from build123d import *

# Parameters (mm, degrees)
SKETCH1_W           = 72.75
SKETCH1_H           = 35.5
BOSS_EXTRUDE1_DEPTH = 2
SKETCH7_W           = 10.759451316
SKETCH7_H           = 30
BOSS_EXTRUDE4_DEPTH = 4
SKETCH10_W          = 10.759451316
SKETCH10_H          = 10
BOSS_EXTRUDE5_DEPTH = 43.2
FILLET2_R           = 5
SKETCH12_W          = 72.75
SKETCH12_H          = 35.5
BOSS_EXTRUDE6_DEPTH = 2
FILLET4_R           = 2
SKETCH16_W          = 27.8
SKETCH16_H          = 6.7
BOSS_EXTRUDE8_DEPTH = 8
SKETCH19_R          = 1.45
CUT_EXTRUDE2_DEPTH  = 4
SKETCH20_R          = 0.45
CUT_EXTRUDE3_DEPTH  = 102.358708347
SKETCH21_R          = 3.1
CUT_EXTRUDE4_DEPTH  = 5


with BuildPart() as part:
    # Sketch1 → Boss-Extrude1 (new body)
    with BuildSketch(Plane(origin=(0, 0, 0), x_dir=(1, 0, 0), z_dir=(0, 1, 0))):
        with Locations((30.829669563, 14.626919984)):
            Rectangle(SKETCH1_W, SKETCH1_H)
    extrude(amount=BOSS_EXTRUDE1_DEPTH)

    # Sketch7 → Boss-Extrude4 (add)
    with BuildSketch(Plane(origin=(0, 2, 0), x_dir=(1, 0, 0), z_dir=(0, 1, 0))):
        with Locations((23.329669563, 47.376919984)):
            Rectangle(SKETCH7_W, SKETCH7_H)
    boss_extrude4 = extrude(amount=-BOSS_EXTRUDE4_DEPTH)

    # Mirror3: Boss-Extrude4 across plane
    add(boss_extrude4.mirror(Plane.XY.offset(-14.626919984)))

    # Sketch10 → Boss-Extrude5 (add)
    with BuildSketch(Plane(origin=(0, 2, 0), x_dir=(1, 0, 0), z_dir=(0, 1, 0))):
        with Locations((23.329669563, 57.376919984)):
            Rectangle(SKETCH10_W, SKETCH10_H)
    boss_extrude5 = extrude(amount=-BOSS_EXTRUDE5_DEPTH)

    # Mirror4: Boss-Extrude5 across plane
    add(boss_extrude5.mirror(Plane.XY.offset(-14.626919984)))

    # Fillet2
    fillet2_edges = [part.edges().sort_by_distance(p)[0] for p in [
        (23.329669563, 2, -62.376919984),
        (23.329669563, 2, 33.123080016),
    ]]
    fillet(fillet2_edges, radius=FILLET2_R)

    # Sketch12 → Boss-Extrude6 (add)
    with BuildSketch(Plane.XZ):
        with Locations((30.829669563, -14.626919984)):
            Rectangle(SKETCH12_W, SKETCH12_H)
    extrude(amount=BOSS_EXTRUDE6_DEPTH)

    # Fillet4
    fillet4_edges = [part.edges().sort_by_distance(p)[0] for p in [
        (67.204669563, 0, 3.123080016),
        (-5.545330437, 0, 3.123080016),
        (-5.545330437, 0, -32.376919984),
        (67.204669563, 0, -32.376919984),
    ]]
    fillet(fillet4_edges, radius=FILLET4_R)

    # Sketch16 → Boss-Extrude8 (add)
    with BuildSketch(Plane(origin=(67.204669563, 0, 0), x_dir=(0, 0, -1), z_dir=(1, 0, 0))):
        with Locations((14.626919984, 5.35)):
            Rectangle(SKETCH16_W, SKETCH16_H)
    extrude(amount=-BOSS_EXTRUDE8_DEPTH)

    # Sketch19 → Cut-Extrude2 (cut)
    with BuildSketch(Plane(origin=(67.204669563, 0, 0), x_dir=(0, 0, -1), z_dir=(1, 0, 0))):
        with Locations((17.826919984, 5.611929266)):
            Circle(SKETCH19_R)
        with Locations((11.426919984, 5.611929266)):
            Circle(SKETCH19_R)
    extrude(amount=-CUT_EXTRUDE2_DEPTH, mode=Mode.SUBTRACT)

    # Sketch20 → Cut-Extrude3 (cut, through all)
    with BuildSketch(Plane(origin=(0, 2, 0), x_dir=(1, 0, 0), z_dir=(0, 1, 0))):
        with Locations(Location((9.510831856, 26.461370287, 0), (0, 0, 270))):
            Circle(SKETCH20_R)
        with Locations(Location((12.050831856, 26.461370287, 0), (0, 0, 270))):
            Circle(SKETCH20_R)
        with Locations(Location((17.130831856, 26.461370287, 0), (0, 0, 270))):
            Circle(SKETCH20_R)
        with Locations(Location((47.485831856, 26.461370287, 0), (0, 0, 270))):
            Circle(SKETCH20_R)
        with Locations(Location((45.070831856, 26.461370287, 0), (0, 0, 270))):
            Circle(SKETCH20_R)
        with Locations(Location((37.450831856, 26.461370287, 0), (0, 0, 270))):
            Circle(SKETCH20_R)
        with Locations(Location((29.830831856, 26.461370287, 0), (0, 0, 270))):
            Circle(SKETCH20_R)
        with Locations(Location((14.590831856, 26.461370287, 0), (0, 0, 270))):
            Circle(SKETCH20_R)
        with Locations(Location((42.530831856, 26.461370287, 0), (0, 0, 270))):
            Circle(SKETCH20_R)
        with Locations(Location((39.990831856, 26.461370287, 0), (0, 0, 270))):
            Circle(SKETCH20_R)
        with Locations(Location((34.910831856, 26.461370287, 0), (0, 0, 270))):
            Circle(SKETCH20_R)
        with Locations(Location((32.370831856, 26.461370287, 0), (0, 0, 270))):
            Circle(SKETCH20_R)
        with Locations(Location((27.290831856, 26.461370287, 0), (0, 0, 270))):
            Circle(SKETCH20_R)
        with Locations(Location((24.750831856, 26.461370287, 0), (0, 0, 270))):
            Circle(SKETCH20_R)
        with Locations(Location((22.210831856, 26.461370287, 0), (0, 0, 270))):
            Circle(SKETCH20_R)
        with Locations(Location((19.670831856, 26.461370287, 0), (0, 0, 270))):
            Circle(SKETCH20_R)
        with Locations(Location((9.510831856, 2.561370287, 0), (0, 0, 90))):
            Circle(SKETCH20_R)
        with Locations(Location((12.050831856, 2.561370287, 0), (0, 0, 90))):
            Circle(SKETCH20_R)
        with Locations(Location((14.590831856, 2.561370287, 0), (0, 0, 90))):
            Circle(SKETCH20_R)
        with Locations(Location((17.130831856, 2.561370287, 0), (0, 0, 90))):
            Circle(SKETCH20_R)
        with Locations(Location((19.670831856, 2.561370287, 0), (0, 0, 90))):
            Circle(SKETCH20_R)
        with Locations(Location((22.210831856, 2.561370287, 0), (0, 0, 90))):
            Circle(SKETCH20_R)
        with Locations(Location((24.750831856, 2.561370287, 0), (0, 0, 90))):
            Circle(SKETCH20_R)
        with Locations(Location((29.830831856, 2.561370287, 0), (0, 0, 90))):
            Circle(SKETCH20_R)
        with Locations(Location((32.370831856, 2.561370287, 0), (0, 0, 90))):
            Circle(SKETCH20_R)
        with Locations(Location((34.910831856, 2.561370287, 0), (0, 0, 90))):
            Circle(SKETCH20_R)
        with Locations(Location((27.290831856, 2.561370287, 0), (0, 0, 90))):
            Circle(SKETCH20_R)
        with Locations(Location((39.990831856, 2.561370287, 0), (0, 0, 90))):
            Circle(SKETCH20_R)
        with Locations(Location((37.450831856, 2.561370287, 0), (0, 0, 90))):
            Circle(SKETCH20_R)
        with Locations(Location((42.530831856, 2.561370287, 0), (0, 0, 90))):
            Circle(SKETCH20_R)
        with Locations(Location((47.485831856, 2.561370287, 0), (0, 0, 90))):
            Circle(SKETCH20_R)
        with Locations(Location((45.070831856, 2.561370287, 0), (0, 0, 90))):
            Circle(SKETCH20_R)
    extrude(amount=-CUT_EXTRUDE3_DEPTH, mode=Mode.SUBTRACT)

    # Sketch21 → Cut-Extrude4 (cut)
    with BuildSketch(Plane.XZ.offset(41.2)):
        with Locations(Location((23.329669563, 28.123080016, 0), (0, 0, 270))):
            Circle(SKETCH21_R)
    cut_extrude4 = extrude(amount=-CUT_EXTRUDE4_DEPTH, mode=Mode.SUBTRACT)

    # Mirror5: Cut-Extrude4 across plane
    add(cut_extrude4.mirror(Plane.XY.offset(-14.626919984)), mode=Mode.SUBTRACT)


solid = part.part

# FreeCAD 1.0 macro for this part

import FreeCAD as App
import Part
import Sketcher

V = App.Vector
Q = App.Units.Quantity


def edges_at(feature, points):
    """Names of the edges that pass closest to the given points."""
    edges = feature.Shape.Edges
    near = lambda p: min(range(len(edges)), key=lambda i: edges[i].distToShape(Part.Vertex(*p))[0])
    return sorted({f"Edge{near(p) + 1}" for p in points})

doc = App.newDocument("Part")
body = doc.addObject("PartDesign::Body", "Body")

# Sketch on XZ plane
sketch1 = body.newObject("Sketcher::SketchObject", "Sketch")
sketch1.AttachmentSupport = (doc.getObject("XZ_Plane"), [""])
sketch1.MapMode = "FlatFace"
sketch1.addGeometry([
    Part.LineSegment(V(-6, -32, 0), V(-6, 3, 0)),
    Part.LineSegment(V(-6, 3, 0), V(67, 3, 0)),
    Part.LineSegment(V(67, 3, 0), V(67, -32, 0)),
    Part.LineSegment(V(67, -32, 0), V(-6, -32, 0)),
], False)
sketch1.addConstraint([
    Sketcher.Constraint("Coincident", 0, 2, 1, 1),
    Sketcher.Constraint("Coincident", 1, 2, 2, 1),
    Sketcher.Constraint("Coincident", 2, 2, 3, 1),
    Sketcher.Constraint("Coincident", 3, 2, 0, 1),
    Sketcher.Constraint("Vertical", 0),
    Sketcher.Constraint("Horizontal", 1),
    Sketcher.Constraint("Vertical", 2),
    Sketcher.Constraint("Horizontal", 3),
    Sketcher.Constraint("DistanceY", 0, 1, 0, 2, Q("35.5 mm")),
    Sketcher.Constraint("DistanceX", 1, 1, 1, 2, Q("72.75 mm")),
    Sketcher.Constraint("DistanceX", 0, 2, -1, 1, Q("5.54533 mm")),
    Sketcher.Constraint("DistanceY", -1, 1, 0, 2, Q("3.12308 mm")),
])
pad1 = body.newObject("PartDesign::Pad", "Pad")
pad1.Profile = sketch1
pad1.Length = 2
pad1.Reversed = True

# Sketch on XZ plane
sketch2 = body.newObject("Sketcher::SketchObject", "Sketch001")
sketch2.AttachmentSupport = (doc.getObject("XZ_Plane"), [""])
sketch2.MapMode = "FlatFace"
sketch2.AttachmentOffset = App.Placement(V(0, 0, -2), App.Rotation())
sketch2.addGeometry([
    Part.LineSegment(V(18, -62, 0), V(18, -32, 0)),
    Part.LineSegment(V(18, -32, 0), V(29, -32, 0)),
    Part.LineSegment(V(29, -32, 0), V(29, -62, 0)),
    Part.LineSegment(V(29, -62, 0), V(18, -62, 0)),
], False)
sketch2.addConstraint([
    Sketcher.Constraint("Coincident", 0, 2, 1, 1),
    Sketcher.Constraint("Coincident", 1, 2, 2, 1),
    Sketcher.Constraint("Coincident", 2, 2, 3, 1),
    Sketcher.Constraint("Coincident", 3, 2, 0, 1),
    Sketcher.Constraint("Vertical", 0),
    Sketcher.Constraint("Horizontal", 1),
    Sketcher.Constraint("Vertical", 2),
    Sketcher.Constraint("Horizontal", 3),
    Sketcher.Constraint("DistanceY", 0, 1, 0, 2, Q("30 mm")),
    Sketcher.Constraint("DistanceX", 1, 1, 1, 2, Q("10.759451 mm")),
    Sketcher.Constraint("DistanceY", 0, 2, -1, 1, Q("32.37692 mm")),
    Sketcher.Constraint("DistanceX", -1, 1, 0, 2, Q("17.949944 mm")),
])
pad2 = body.newObject("PartDesign::Pad", "Pad001")
pad2.Profile = sketch2
pad2.Length = 4
doc.recompute()

datumplane = body.newObject("PartDesign::Plane", "DatumPlane")
datumplane.AttachmentSupport = (doc.getObject("XY_Plane"), [""])
datumplane.MapMode = "FlatFace"
datumplane.AttachmentOffset = App.Placement(V(0, 0, -14.62692), App.Rotation())
mirrored = body.newObject("PartDesign::Mirrored", "Mirrored")
mirrored.Originals = [pad2]
mirrored.MirrorPlane = (datumplane, [""])
body.Tip = mirrored

# Sketch on XZ plane
sketch3 = body.newObject("Sketcher::SketchObject", "Sketch002")
sketch3.AttachmentSupport = (doc.getObject("XZ_Plane"), [""])
sketch3.MapMode = "FlatFace"
sketch3.AttachmentOffset = App.Placement(V(0, 0, -2), App.Rotation())
sketch3.addGeometry([
    Part.LineSegment(V(18, -62, 0), V(18, -52, 0)),
    Part.LineSegment(V(18, -52, 0), V(29, -52, 0)),
    Part.LineSegment(V(29, -52, 0), V(29, -62, 0)),
    Part.LineSegment(V(29, -62, 0), V(18, -62, 0)),
], False)
sketch3.addConstraint([
    Sketcher.Constraint("Coincident", 0, 2, 1, 1),
    Sketcher.Constraint("Coincident", 1, 2, 2, 1),
    Sketcher.Constraint("Coincident", 2, 2, 3, 1),
    Sketcher.Constraint("Coincident", 3, 2, 0, 1),
    Sketcher.Constraint("Vertical", 0),
    Sketcher.Constraint("Horizontal", 1),
    Sketcher.Constraint("Vertical", 2),
    Sketcher.Constraint("Horizontal", 3),
    Sketcher.Constraint("DistanceY", 0, 1, 0, 2, Q("10 mm")),
    Sketcher.Constraint("DistanceX", 1, 1, 1, 2, Q("10.759451 mm")),
    Sketcher.Constraint("DistanceY", 0, 2, -1, 1, Q("52.37692 mm")),
    Sketcher.Constraint("DistanceX", -1, 1, 0, 2, Q("17.949944 mm")),
])
pad3 = body.newObject("PartDesign::Pad", "Pad002")
pad3.Profile = sketch3
pad3.Length = 43.2
doc.recompute()

datumplane2 = body.newObject("PartDesign::Plane", "DatumPlane001")
datumplane2.AttachmentSupport = (doc.getObject("XY_Plane"), [""])
datumplane2.MapMode = "FlatFace"
datumplane2.AttachmentOffset = App.Placement(V(0, 0, -14.62692), App.Rotation())
mirrored2 = body.newObject("PartDesign::Mirrored", "Mirrored001")
mirrored2.Originals = [pad3]
mirrored2.MirrorPlane = (datumplane2, [""])
body.Tip = mirrored2
doc.recompute()

fillet = body.newObject("PartDesign::Fillet", "Fillet")
fillet.Base = (mirrored2, edges_at(mirrored2, [(23.33, 2, -62.377), (23.33, 2, 33.123)]))
fillet.Radius = 5

# Sketch on XZ plane
sketch4 = body.newObject("Sketcher::SketchObject", "Sketch003")
sketch4.AttachmentSupport = (doc.getObject("XZ_Plane"), [""])
sketch4.MapMode = "FlatFace"
sketch4.addGeometry([
    Part.LineSegment(V(-6, 3, 0), V(-6, -32, 0)),
    Part.LineSegment(V(-6, -32, 0), V(67, -32, 0)),
    Part.LineSegment(V(67, -32, 0), V(67, 3, 0)),
    Part.LineSegment(V(67, 3, 0), V(-6, 3, 0)),
], False)
sketch4.addConstraint([
    Sketcher.Constraint("Coincident", 0, 2, 1, 1),
    Sketcher.Constraint("Coincident", 1, 2, 2, 1),
    Sketcher.Constraint("Coincident", 2, 2, 3, 1),
    Sketcher.Constraint("Coincident", 3, 2, 0, 1),
    Sketcher.Constraint("Vertical", 0),
    Sketcher.Constraint("Horizontal", 1),
    Sketcher.Constraint("Vertical", 2),
    Sketcher.Constraint("Horizontal", 3),
    Sketcher.Constraint("DistanceY", 0, 2, 0, 1, Q("35.5 mm")),
    Sketcher.Constraint("DistanceX", 1, 1, 1, 2, Q("72.75 mm")),
    Sketcher.Constraint("DistanceX", 0, 2, -1, 1, Q("5.54533 mm")),
    Sketcher.Constraint("DistanceY", 0, 2, -1, 1, Q("32.37692 mm")),
])
pad4 = body.newObject("PartDesign::Pad", "Pad003")
pad4.Profile = sketch4
pad4.Length = 2
doc.recompute()

fillet2 = body.newObject("PartDesign::Fillet", "Fillet001")
fillet2.Base = (pad4, edges_at(pad4, [
    (67.205, 0, 3.123),
    (-5.545, 0, 3.123),
    (-5.545, 0, -32.377),
    (67.205, 0, -32.377),
]))
fillet2.Radius = 2

# Sketch on YZ plane
sketch5 = body.newObject("Sketcher::SketchObject", "Sketch004")
sketch5.AttachmentSupport = (doc.getObject("YZ_Plane"), [""])
sketch5.MapMode = "FlatFace"
sketch5.AttachmentOffset = App.Placement(V(0, 0, 67.20467), App.Rotation())
sketch5.addGeometry([
    Part.LineSegment(V(9, -1, 0), V(2, -1, 0)),
    Part.LineSegment(V(2, -1, 0), V(2, -29, 0)),
    Part.LineSegment(V(2, -29, 0), V(9, -29, 0)),
    Part.LineSegment(V(9, -29, 0), V(9, -1, 0)),
], False)
sketch5.addConstraint([
    Sketcher.Constraint("Coincident", 0, 2, 1, 1),
    Sketcher.Constraint("Coincident", 1, 2, 2, 1),
    Sketcher.Constraint("Coincident", 2, 2, 3, 1),
    Sketcher.Constraint("Coincident", 3, 2, 0, 1),
    Sketcher.Constraint("Horizontal", 0),
    Sketcher.Constraint("Vertical", 1),
    Sketcher.Constraint("Horizontal", 2),
    Sketcher.Constraint("Vertical", 3),
    Sketcher.Constraint("DistanceX", 0, 2, 0, 1, Q("6.7 mm")),
    Sketcher.Constraint("DistanceY", 1, 2, 1, 1, Q("27.8 mm")),
    Sketcher.Constraint("DistanceX", -1, 1, 0, 2, Q("2 mm")),
    Sketcher.Constraint("DistanceY", 0, 2, -1, 1, Q("0.72692 mm")),
])
pad5 = body.newObject("PartDesign::Pad", "Pad004")
pad5.Profile = sketch5
pad5.Length = 8
pad5.Reversed = True

# Sketch on YZ plane
sketch6 = body.newObject("Sketcher::SketchObject", "Sketch005")
sketch6.AttachmentSupport = (doc.getObject("YZ_Plane"), [""])
sketch6.MapMode = "FlatFace"
sketch6.AttachmentOffset = App.Placement(V(0, 0, 67.20467), App.Rotation())
sketch6.addGeometry([
    Part.Circle(V(5.6, -17.8, 0), V(0, 0, 1), 1.4),
    Part.Circle(V(5.6, -11.4, 0), V(0, 0, 1), 1.4),
], False)
sketch6.addConstraint([
    Sketcher.Constraint("Equal", 0, 1),
    Sketcher.Constraint("Vertical", 0, 3, 1, 3),
    Sketcher.Constraint("Diameter", 0, Q("2.9 mm")),
    Sketcher.Constraint("DistanceY", 0, 3, 1, 3, Q("6.4 mm")),
    Sketcher.Constraint("DistanceX", -1, 1, 0, 3, Q("5.611929 mm")),
    Sketcher.Constraint("DistanceY", 0, 3, -1, 1, Q("17.82692 mm")),
])
pocket1 = body.newObject("PartDesign::Pocket", "Pocket")
pocket1.Profile = sketch6
pocket1.Length = 4

# Sketch on XZ plane
sketch7 = body.newObject("Sketcher::SketchObject", "Sketch006")
sketch7.AttachmentSupport = (doc.getObject("XZ_Plane"), [""])
sketch7.MapMode = "FlatFace"
sketch7.AttachmentOffset = App.Placement(V(0, 0, -2), App.Rotation())
sketch7.addGeometry([
    Part.Circle(V(9.51, -26.46, 0), V(0, 0, 1), 0.45),  # 0
    Part.Circle(V(12.05, -26.46, 0), V(0, 0, 1), 0.45),  # 1
    Part.Circle(V(17.13, -26.46, 0), V(0, 0, 1), 0.45),  # 2
    Part.Circle(V(47.49, -26.46, 0), V(0, 0, 1), 0.45),  # 3
    Part.Circle(V(45.07, -26.46, 0), V(0, 0, 1), 0.45),  # 4
    Part.Circle(V(37.45, -26.46, 0), V(0, 0, 1), 0.45),  # 5
    Part.Circle(V(29.83, -26.46, 0), V(0, 0, 1), 0.45),  # 6
    Part.Circle(V(14.59, -26.46, 0), V(0, 0, 1), 0.45),  # 7
    Part.Circle(V(42.53, -26.46, 0), V(0, 0, 1), 0.45),  # 8
    Part.Circle(V(39.99, -26.46, 0), V(0, 0, 1), 0.45),  # 9
    Part.Circle(V(34.91, -26.46, 0), V(0, 0, 1), 0.45),  # 10
    Part.Circle(V(32.37, -26.46, 0), V(0, 0, 1), 0.45),  # 11
    Part.Circle(V(27.29, -26.46, 0), V(0, 0, 1), 0.45),  # 12
    Part.Circle(V(24.75, -26.46, 0), V(0, 0, 1), 0.45),  # 13
    Part.Circle(V(22.21, -26.46, 0), V(0, 0, 1), 0.45),  # 14
    Part.Circle(V(19.67, -26.46, 0), V(0, 0, 1), 0.45),  # 15
    Part.Circle(V(9.51, -2.56, 0), V(0, 0, 1), 0.45),  # 16
    Part.Circle(V(12.05, -2.56, 0), V(0, 0, 1), 0.45),  # 17
    Part.Circle(V(14.59, -2.56, 0), V(0, 0, 1), 0.45),  # 18
    Part.Circle(V(17.13, -2.56, 0), V(0, 0, 1), 0.45),  # 19
    Part.Circle(V(19.67, -2.56, 0), V(0, 0, 1), 0.45),  # 20
    Part.Circle(V(22.21, -2.56, 0), V(0, 0, 1), 0.45),  # 21
    Part.Circle(V(24.75, -2.56, 0), V(0, 0, 1), 0.45),  # 22
    Part.Circle(V(29.83, -2.56, 0), V(0, 0, 1), 0.45),  # 23
    Part.Circle(V(32.37, -2.56, 0), V(0, 0, 1), 0.45),  # 24
    Part.Circle(V(34.91, -2.56, 0), V(0, 0, 1), 0.45),  # 25
    Part.Circle(V(27.29, -2.56, 0), V(0, 0, 1), 0.45),  # 26
    Part.Circle(V(39.99, -2.56, 0), V(0, 0, 1), 0.45),  # 27
    Part.Circle(V(37.45, -2.56, 0), V(0, 0, 1), 0.45),  # 28
    Part.Circle(V(42.53, -2.56, 0), V(0, 0, 1), 0.45),  # 29
    Part.Circle(V(47.49, -2.56, 0), V(0, 0, 1), 0.45),  # 30
    Part.Circle(V(45.07, -2.56, 0), V(0, 0, 1), 0.45),  # 31
], False)
sketch7.addConstraint([
    Sketcher.Constraint("Equal", 0, 1),
    Sketcher.Constraint("Equal", 1, 2),
    Sketcher.Constraint("Equal", 2, 3),
    Sketcher.Constraint("Equal", 3, 4),
    Sketcher.Constraint("Equal", 4, 5),
    Sketcher.Constraint("Equal", 5, 6),
    Sketcher.Constraint("Equal", 6, 7),
    Sketcher.Constraint("Equal", 7, 8),
    Sketcher.Constraint("Equal", 8, 9),
    Sketcher.Constraint("Equal", 9, 10),
    Sketcher.Constraint("Equal", 10, 11),
    Sketcher.Constraint("Equal", 11, 12),
    Sketcher.Constraint("Equal", 12, 13),
    Sketcher.Constraint("Equal", 13, 14),
    Sketcher.Constraint("Equal", 14, 15),
    Sketcher.Constraint("Equal", 15, 16),
    Sketcher.Constraint("Equal", 16, 17),
    Sketcher.Constraint("Equal", 17, 18),
    Sketcher.Constraint("Equal", 18, 19),
    Sketcher.Constraint("Equal", 19, 20),
    Sketcher.Constraint("Equal", 20, 21),
    Sketcher.Constraint("Equal", 21, 22),
    Sketcher.Constraint("Equal", 22, 23),
    Sketcher.Constraint("Equal", 23, 24),
    Sketcher.Constraint("Equal", 24, 25),
    Sketcher.Constraint("Equal", 25, 26),
    Sketcher.Constraint("Equal", 26, 27),
    Sketcher.Constraint("Equal", 27, 28),
    Sketcher.Constraint("Equal", 28, 29),
    Sketcher.Constraint("Equal", 29, 30),
    Sketcher.Constraint("Equal", 30, 31),
    Sketcher.Constraint("Horizontal", 0, 3, 1, 3),
    Sketcher.Constraint("Horizontal", 1, 3, 2, 3),
    Sketcher.Constraint("Horizontal", 2, 3, 3, 3),
    Sketcher.Constraint("Horizontal", 3, 3, 4, 3),
    Sketcher.Constraint("Horizontal", 4, 3, 5, 3),
    Sketcher.Constraint("Horizontal", 5, 3, 6, 3),
    Sketcher.Constraint("Horizontal", 6, 3, 7, 3),
    Sketcher.Constraint("Horizontal", 7, 3, 8, 3),
    Sketcher.Constraint("Horizontal", 8, 3, 9, 3),
    Sketcher.Constraint("Horizontal", 9, 3, 10, 3),
    Sketcher.Constraint("Horizontal", 10, 3, 11, 3),
    Sketcher.Constraint("Horizontal", 11, 3, 12, 3),
    Sketcher.Constraint("Horizontal", 12, 3, 13, 3),
    Sketcher.Constraint("Horizontal", 13, 3, 14, 3),
    Sketcher.Constraint("Horizontal", 14, 3, 15, 3),
    Sketcher.Constraint("Horizontal", 16, 3, 17, 3),
    Sketcher.Constraint("Horizontal", 17, 3, 18, 3),
    Sketcher.Constraint("Horizontal", 18, 3, 19, 3),
    Sketcher.Constraint("Horizontal", 19, 3, 20, 3),
    Sketcher.Constraint("Horizontal", 20, 3, 21, 3),
    Sketcher.Constraint("Horizontal", 21, 3, 22, 3),
    Sketcher.Constraint("Horizontal", 22, 3, 23, 3),
    Sketcher.Constraint("Horizontal", 23, 3, 24, 3),
    Sketcher.Constraint("Horizontal", 24, 3, 25, 3),
    Sketcher.Constraint("Horizontal", 25, 3, 26, 3),
    Sketcher.Constraint("Horizontal", 26, 3, 27, 3),
    Sketcher.Constraint("Horizontal", 27, 3, 28, 3),
    Sketcher.Constraint("Horizontal", 28, 3, 29, 3),
    Sketcher.Constraint("Horizontal", 29, 3, 30, 3),
    Sketcher.Constraint("Horizontal", 30, 3, 31, 3),
    Sketcher.Constraint("Vertical", 0, 3, 16, 3),
    Sketcher.Constraint("Vertical", 1, 3, 17, 3),
    Sketcher.Constraint("Vertical", 7, 3, 18, 3),
    Sketcher.Constraint("Vertical", 2, 3, 19, 3),
    Sketcher.Constraint("Vertical", 15, 3, 20, 3),
    Sketcher.Constraint("Vertical", 14, 3, 21, 3),
    Sketcher.Constraint("Vertical", 13, 3, 22, 3),
    Sketcher.Constraint("Vertical", 6, 3, 23, 3),
    Sketcher.Constraint("Vertical", 11, 3, 24, 3),
    Sketcher.Constraint("Vertical", 10, 3, 25, 3),
    Sketcher.Constraint("Vertical", 12, 3, 26, 3),
    Sketcher.Constraint("Vertical", 9, 3, 27, 3),
    Sketcher.Constraint("Vertical", 5, 3, 28, 3),
    Sketcher.Constraint("Vertical", 8, 3, 29, 3),
    Sketcher.Constraint("Vertical", 3, 3, 30, 3),
    Sketcher.Constraint("Vertical", 4, 3, 31, 3),
    Sketcher.Constraint("Diameter", 0, Q("0.9 mm")),
    Sketcher.Constraint("DistanceX", 1, 3, 5, 3, Q("25.4 mm")),
    Sketcher.Constraint("DistanceX", 2, 3, 6, 3, Q("12.7 mm")),
    Sketcher.Constraint("DistanceX", 6, 3, 8, 3, Q("12.7 mm")),
    Sketcher.Constraint("DistanceY", 0, 3, 16, 3, Q("23.9 mm")),
    Sketcher.Constraint("DistanceX", 16, 3, 21, 3, Q("12.7 mm")),
    Sketcher.Constraint("DistanceX", 17, 3, 22, 3, Q("12.7 mm")),
    Sketcher.Constraint("DistanceX", 20, 3, 24, 3, Q("12.7 mm")),
    Sketcher.Constraint("DistanceX", 21, 3, 25, 3, Q("12.7 mm")),
    Sketcher.Constraint("DistanceX", 26, 3, 27, 3, Q("12.7 mm")),
    Sketcher.Constraint("DistanceX", 0, 3, 1, 3, Q("2.54 mm")),
    Sketcher.Constraint("DistanceX", 1, 3, 2, 3, Q("5.08 mm")),
    Sketcher.Constraint("DistanceX", 2, 3, 4, 3, Q("27.94 mm")),
    Sketcher.Constraint("DistanceX", 1, 3, 7, 3, Q("2.54 mm")),
    Sketcher.Constraint("DistanceX", 5, 3, 9, 3, Q("2.54 mm")),
    Sketcher.Constraint("DistanceX", 11, 3, 10, 3, Q("2.54 mm")),
    Sketcher.Constraint("DistanceX", 2, 3, 3, 3, Q("30.355 mm")),
    Sketcher.Constraint("DistanceX", -1, 1, 0, 3, Q("9.510832 mm")),
    Sketcher.Constraint("DistanceY", 0, 3, -1, 1, Q("26.46137 mm")),
])
pocket2 = body.newObject("PartDesign::Pocket", "Pocket001")
pocket2.Profile = sketch7
pocket2.Type = "ThroughAll"
pocket2.Reversed = True

# Sketch on XZ plane
sketch8 = body.newObject("Sketcher::SketchObject", "Sketch007")
sketch8.AttachmentSupport = (doc.getObject("XZ_Plane"), [""])
sketch8.MapMode = "FlatFace"
sketch8.AttachmentOffset = App.Placement(V(0, 0, 41.2), App.Rotation())
sketch8.addGeometry(Part.Circle(V(23.3, 28.1, 0), V(0, 0, 1), 3.1), False)
sketch8.addConstraint([
    Sketcher.Constraint("Diameter", 0, Q("6.2 mm")),
    Sketcher.Constraint("DistanceX", -1, 1, 0, 3, Q("23.32967 mm")),
    Sketcher.Constraint("DistanceY", -1, 1, 0, 3, Q("28.12308 mm")),
])
pocket3 = body.newObject("PartDesign::Pocket", "Pocket002")
pocket3.Profile = sketch8
pocket3.Length = 5
doc.recompute()

datumplane3 = body.newObject("PartDesign::Plane", "DatumPlane002")
datumplane3.AttachmentSupport = (doc.getObject("XY_Plane"), [""])
datumplane3.MapMode = "FlatFace"
datumplane3.AttachmentOffset = App.Placement(V(0, 0, -14.62692), App.Rotation())
mirrored3 = body.newObject("PartDesign::Mirrored", "Mirrored002")
mirrored3.Originals = [pocket3]
mirrored3.MirrorPlane = (datumplane3, [""])
body.Tip = mirrored3

doc.recompute()
